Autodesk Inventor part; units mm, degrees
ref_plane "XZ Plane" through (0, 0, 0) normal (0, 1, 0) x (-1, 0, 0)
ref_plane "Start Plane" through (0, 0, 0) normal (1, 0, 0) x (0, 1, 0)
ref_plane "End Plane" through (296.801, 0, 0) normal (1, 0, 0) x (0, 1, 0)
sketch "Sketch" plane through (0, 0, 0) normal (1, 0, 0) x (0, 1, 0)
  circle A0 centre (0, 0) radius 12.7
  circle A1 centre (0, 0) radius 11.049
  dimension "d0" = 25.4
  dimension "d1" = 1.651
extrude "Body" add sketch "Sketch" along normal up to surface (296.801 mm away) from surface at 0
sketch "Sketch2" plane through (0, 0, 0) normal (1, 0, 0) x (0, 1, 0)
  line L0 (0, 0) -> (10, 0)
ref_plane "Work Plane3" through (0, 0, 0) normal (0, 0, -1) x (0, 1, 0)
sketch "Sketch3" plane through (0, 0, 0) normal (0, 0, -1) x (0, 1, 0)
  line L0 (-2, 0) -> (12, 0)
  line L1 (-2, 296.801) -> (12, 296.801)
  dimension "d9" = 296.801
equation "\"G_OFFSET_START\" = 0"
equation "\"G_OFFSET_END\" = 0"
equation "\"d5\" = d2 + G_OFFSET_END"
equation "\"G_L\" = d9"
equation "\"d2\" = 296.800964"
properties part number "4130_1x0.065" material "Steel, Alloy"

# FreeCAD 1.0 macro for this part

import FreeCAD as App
import Part
import Sketcher
Q = App.Units.Quantity

doc = App.newDocument("Part")
body = doc.addObject("PartDesign::Body", "Body")

sketch1 = body.newObject("Sketcher::SketchObject", "Sketch")
sketch1.AttachmentSupport = (doc.getObject("YZ_Plane"), [""])
sketch1.MapMode = "FlatFace"
sketch1.addGeometry(Part.Circle(App.Vector(0, 0, 0), App.Vector(0, 0, 1), 13), False)
sketch1.addGeometry(Part.Circle(App.Vector(0, 0, 0), App.Vector(0, 0, 1), 11), False)
sketch1.addConstraint(Sketcher.Constraint("Coincident", 0, 3, -1, 1))
sketch1.addConstraint(Sketcher.Constraint("Coincident", 1, 3, -1, 1))
sketch1.addConstraint(Sketcher.Constraint("Diameter", 0, Q("1 in")))
sketch1.addConstraint(Sketcher.Constraint("Diameter", 1, Q("0.87 in")))
pad1 = body.newObject("PartDesign::Pad", "Pad")
pad1.Profile = sketch1
pad1.Length = 296.801

doc.recompute()
